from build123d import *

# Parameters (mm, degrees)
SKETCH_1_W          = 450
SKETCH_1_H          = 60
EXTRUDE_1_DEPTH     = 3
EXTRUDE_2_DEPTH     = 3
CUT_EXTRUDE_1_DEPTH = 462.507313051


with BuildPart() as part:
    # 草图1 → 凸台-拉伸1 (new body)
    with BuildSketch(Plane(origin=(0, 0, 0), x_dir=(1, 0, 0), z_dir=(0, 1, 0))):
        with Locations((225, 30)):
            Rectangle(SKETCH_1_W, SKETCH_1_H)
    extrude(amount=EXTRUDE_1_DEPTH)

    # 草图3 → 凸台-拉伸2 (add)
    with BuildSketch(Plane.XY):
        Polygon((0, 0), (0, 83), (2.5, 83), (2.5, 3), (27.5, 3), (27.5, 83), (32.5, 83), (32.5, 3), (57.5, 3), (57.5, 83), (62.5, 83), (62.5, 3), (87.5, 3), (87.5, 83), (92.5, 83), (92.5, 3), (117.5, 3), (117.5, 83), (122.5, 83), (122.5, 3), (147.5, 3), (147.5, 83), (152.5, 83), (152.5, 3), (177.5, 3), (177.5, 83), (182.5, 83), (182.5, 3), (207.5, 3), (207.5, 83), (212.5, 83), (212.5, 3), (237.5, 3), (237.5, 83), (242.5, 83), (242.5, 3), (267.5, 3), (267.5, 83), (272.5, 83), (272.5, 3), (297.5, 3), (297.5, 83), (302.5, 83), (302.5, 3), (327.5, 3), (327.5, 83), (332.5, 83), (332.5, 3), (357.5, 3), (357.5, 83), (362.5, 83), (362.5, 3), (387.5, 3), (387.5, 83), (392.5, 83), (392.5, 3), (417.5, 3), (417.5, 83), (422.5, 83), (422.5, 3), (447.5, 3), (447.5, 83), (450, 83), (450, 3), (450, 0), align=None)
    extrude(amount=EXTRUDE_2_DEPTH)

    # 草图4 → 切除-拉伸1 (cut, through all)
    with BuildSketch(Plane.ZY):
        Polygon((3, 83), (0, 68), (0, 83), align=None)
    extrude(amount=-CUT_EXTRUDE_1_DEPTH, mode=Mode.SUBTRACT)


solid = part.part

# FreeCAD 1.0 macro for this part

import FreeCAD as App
import Part
import Sketcher

V = App.Vector


def add_polygon(sketch, points):
    """Adds a closed chain of lines whose ends are joined by coincident constraints."""
    first, n = sketch.GeometryCount, len(points)
    for a, b in zip(points, points[1:] + points[:1]):
        sketch.addGeometry(Part.LineSegment(App.Vector(*a, 0), App.Vector(*b, 0)), False)
    for i in range(n):
        sketch.addConstraint(Sketcher.Constraint("Coincident", first + i, 2, first + (i + 1) % n, 1))

doc = App.newDocument("Part")
body = doc.addObject("PartDesign::Body", "Body")

# Sketch on XZ plane
sketch1 = body.newObject("Sketcher::SketchObject", "Sketch")
sketch1.AttachmentSupport = (doc.getObject("XZ_Plane"), [""])
sketch1.MapMode = "FlatFace"
add_polygon(sketch1, [(0, -60), (0, 0), (450, 0), (450, -60)])  # lines 0-3
sketch1.addConstraint([
    Sketcher.Constraint("Vertical", 0),
    Sketcher.Constraint("Horizontal", 1),
    Sketcher.Constraint("Vertical", 2),
    Sketcher.Constraint("Horizontal", 3),
    Sketcher.Constraint("Coincident", 0, 2, -1, 1),
    Sketcher.Constraint("DistanceX", 1, 1, 1, 2, 450.0),
    Sketcher.Constraint("DistanceY", 0, 1, 0, 2, 60.0),
])
pad1 = body.newObject("PartDesign::Pad", "Pad")
pad1.Profile = sketch1
pad1.Length = 3
pad1.Reversed = True

# Sketch on XY plane
sketch2 = body.newObject("Sketcher::SketchObject", "Sketch001")
sketch2.AttachmentSupport = (doc.getObject("XY_Plane"), [""])
sketch2.MapMode = "FlatFace"
add_polygon(sketch2, [(0, 83), (0, 0), (450, 0), (450, 83), (447.5, 83), (447.5, 3), (422.5, 3), (422.5, 83), (417.5, 83), (417.5, 3), (392.5, 3), (392.5, 83), (387.5, 83), (387.5, 3), (362.5, 3), (362.5, 83), (357.5, 83), (357.5, 3), (332.5, 3), (332.5, 83), (327.5, 83), (327.5, 3), (302.5, 3), (302.5, 83), (297.5, 83), (297.5, 3), (272.5, 3), (272.5, 83), (267.5, 83), (267.5, 3), (242.5, 3), (242.5, 83), (237.5, 83), (237.5, 3), (212.5, 3), (212.5, 83), (207.5, 83), (207.5, 3), (182.5, 3), (182.5, 83), (177.5, 83), (177.5, 3), (152.5, 3), (152.5, 83), (147.5, 83), (147.5, 3), (122.5, 3), (122.5, 83), (117.5, 83), (117.5, 3), (92.5, 3), (92.5, 83), (87.5, 83), (87.5, 3), (62.5, 3), (62.5, 83), (57.5, 83), (57.5, 3), (32.5, 3), (32.5, 83), (27.5, 83), (27.5, 3), (2.5, 3), (2.5, 83)])  # lines 0-63
sketch2.addConstraint([
    Sketcher.Constraint("Vertical", 0),
    Sketcher.Constraint("Horizontal", 1),
    Sketcher.Constraint("Vertical", 2),
    Sketcher.Constraint("Horizontal", 3),
    Sketcher.Constraint("Vertical", 4),
    Sketcher.Constraint("Horizontal", 5),
    Sketcher.Constraint("Vertical", 6),
    Sketcher.Constraint("Horizontal", 7),
    Sketcher.Constraint("Vertical", 8),
    Sketcher.Constraint("Horizontal", 9),
    Sketcher.Constraint("Vertical", 10),
    Sketcher.Constraint("Horizontal", 11),
    Sketcher.Constraint("Vertical", 12),
    Sketcher.Constraint("Horizontal", 13),
    Sketcher.Constraint("Vertical", 14),
    Sketcher.Constraint("Horizontal", 15),
    Sketcher.Constraint("Vertical", 16),
    Sketcher.Constraint("Horizontal", 17),
    Sketcher.Constraint("Vertical", 18),
    Sketcher.Constraint("Horizontal", 19),
    Sketcher.Constraint("Vertical", 20),
    Sketcher.Constraint("Horizontal", 21),
    Sketcher.Constraint("Vertical", 22),
    Sketcher.Constraint("Horizontal", 23),
    Sketcher.Constraint("Vertical", 24),
    Sketcher.Constraint("Horizontal", 25),
    Sketcher.Constraint("Vertical", 26),
    Sketcher.Constraint("Horizontal", 27),
    Sketcher.Constraint("Vertical", 28),
    Sketcher.Constraint("Horizontal", 29),
    Sketcher.Constraint("Vertical", 30),
    Sketcher.Constraint("Horizontal", 31),
    Sketcher.Constraint("Vertical", 32),
    Sketcher.Constraint("Horizontal", 33),
    Sketcher.Constraint("Vertical", 34),
    Sketcher.Constraint("Horizontal", 35),
    Sketcher.Constraint("Vertical", 36),
    Sketcher.Constraint("Horizontal", 37),
    Sketcher.Constraint("Vertical", 38),
    Sketcher.Constraint("Horizontal", 39),
    Sketcher.Constraint("Vertical", 40),
    Sketcher.Constraint("Horizontal", 41),
    Sketcher.Constraint("Vertical", 42),
    Sketcher.Constraint("Horizontal", 43),
    Sketcher.Constraint("Vertical", 44),
    Sketcher.Constraint("Horizontal", 45),
    Sketcher.Constraint("Vertical", 46),
    Sketcher.Constraint("Horizontal", 47),
    Sketcher.Constraint("Vertical", 48),
    Sketcher.Constraint("Horizontal", 49),
    Sketcher.Constraint("Vertical", 50),
    Sketcher.Constraint("Horizontal", 51),
    Sketcher.Constraint("Vertical", 52),
    Sketcher.Constraint("Horizontal", 53),
    Sketcher.Constraint("Vertical", 54),
    Sketcher.Constraint("Horizontal", 55),
    Sketcher.Constraint("Vertical", 56),
    Sketcher.Constraint("Horizontal", 57),
    Sketcher.Constraint("Vertical", 58),
    Sketcher.Constraint("Horizontal", 59),
    Sketcher.Constraint("Vertical", 60),
    Sketcher.Constraint("Horizontal", 61),
    Sketcher.Constraint("Vertical", 62),
    Sketcher.Constraint("Horizontal", 63),
    Sketcher.Constraint("Coincident", 0, 2, -1, 1),
    Sketcher.Constraint("Horizontal", 3, 2, 6, 2),
    Sketcher.Constraint("Horizontal", 5, 2, 8, 2),
    Sketcher.Constraint("Horizontal", 7, 2, 10, 2),
    Sketcher.Constraint("Horizontal", 9, 2, 12, 2),
    Sketcher.Constraint("Horizontal", 11, 2, 14, 2),
    Sketcher.Constraint("Horizontal", 13, 2, 16, 2),
    Sketcher.Constraint("Horizontal", 15, 2, 18, 2),
    Sketcher.Constraint("Horizontal", 17, 2, 20, 2),
    Sketcher.Constraint("Horizontal", 19, 2, 22, 2),
    Sketcher.Constraint("Horizontal", 21, 2, 24, 2),
    Sketcher.Constraint("Horizontal", 23, 2, 26, 2),
    Sketcher.Constraint("Horizontal", 25, 2, 28, 2),
    Sketcher.Constraint("Horizontal", 27, 2, 30, 2),
    Sketcher.Constraint("Horizontal", 29, 2, 32, 2),
    Sketcher.Constraint("Horizontal", 31, 2, 34, 2),
    Sketcher.Constraint("Horizontal", 33, 2, 36, 2),
    Sketcher.Constraint("Horizontal", 35, 2, 38, 2),
    Sketcher.Constraint("Horizontal", 37, 2, 40, 2),
    Sketcher.Constraint("Horizontal", 39, 2, 42, 2),
    Sketcher.Constraint("Horizontal", 41, 2, 44, 2),
    Sketcher.Constraint("Horizontal", 43, 2, 46, 2),
    Sketcher.Constraint("Horizontal", 45, 2, 48, 2),
    Sketcher.Constraint("Horizontal", 47, 2, 50, 2),
    Sketcher.Constraint("Horizontal", 49, 2, 52, 2),
    Sketcher.Constraint("Horizontal", 51, 2, 54, 2),
    Sketcher.Constraint("Horizontal", 53, 2, 56, 2),
    Sketcher.Constraint("Horizontal", 55, 2, 58, 2),
    Sketcher.Constraint("Horizontal", 57, 2, 60, 2),
    Sketcher.Constraint("Horizontal", 59, 2, 62, 2),
    Sketcher.Constraint("Equal", 5, 9),
    Sketcher.Constraint("Equal", 7, 11),
    Sketcher.Constraint("Equal", 9, 13),
    Sketcher.Constraint("Equal", 11, 15),
    Sketcher.Constraint("Equal", 13, 17),
    Sketcher.Constraint("Equal", 15, 19),
    Sketcher.Constraint("Equal", 17, 21),
    Sketcher.Constraint("Equal", 19, 23),
    Sketcher.Constraint("Equal", 21, 25),
    Sketcher.Constraint("Equal", 23, 27),
    Sketcher.Constraint("Equal", 25, 29),
    Sketcher.Constraint("Equal", 27, 31),
    Sketcher.Constraint("Equal", 29, 33),
    Sketcher.Constraint("Equal", 31, 35),
    Sketcher.Constraint("Equal", 33, 37),
    Sketcher.Constraint("Equal", 35, 39),
    Sketcher.Constraint("Equal", 37, 41),
    Sketcher.Constraint("Equal", 39, 43),
    Sketcher.Constraint("Equal", 41, 45),
    Sketcher.Constraint("Equal", 43, 47),
    Sketcher.Constraint("Equal", 45, 49),
    Sketcher.Constraint("Equal", 47, 51),
    Sketcher.Constraint("Equal", 49, 53),
    Sketcher.Constraint("Equal", 51, 55),
    Sketcher.Constraint("Equal", 53, 57),
    Sketcher.Constraint("Equal", 55, 59),
    Sketcher.Constraint("Equal", 57, 61),
    Sketcher.Constraint("Equal", 3, 63),
    Sketcher.Constraint("DistanceX", 1, 1, 1, 2, 450.0),
    Sketcher.Constraint("DistanceX", 5, 2, 5, 1, 25.0),
    Sketcher.Constraint("DistanceX", 7, 2, 7, 1, 5.0),
    Sketcher.Constraint("DistanceY", 0, 2, 0, 1, 83.0),
    Sketcher.Constraint("DistanceY", 4, 2, 4, 1, 80.0),
])
pad2 = body.newObject("PartDesign::Pad", "Pad001")
pad2.Profile = sketch2
pad2.Length = 3

# Sketch on YZ plane
sketch3 = body.newObject("Sketcher::SketchObject", "Sketch002")
sketch3.AttachmentSupport = (doc.getObject("YZ_Plane"), [""])
sketch3.MapMode = "FlatFace"
add_polygon(sketch3, [(68, 0), (83, 3), (83, 0)])  # lines 0-2
sketch3.addConstraint([
    Sketcher.Constraint("Vertical", 1),
    Sketcher.Constraint("Horizontal", 2),
    Sketcher.Constraint("PointOnObject", 1, 2, -1),
    Sketcher.Constraint("DistanceX", 2, 2, 2, 1, 15.0),
    Sketcher.Constraint("DistanceY", 1, 2, 1, 1, 3.0),
    Sketcher.Constraint("DistanceX", -1, 1, 0, 2, 83.0),
])
pocket1 = body.newObject("PartDesign::Pocket", "Pocket")
pocket1.Profile = sketch3
pocket1.Type = "ThroughAll"
pocket1.Reversed = True

doc.recompute()
